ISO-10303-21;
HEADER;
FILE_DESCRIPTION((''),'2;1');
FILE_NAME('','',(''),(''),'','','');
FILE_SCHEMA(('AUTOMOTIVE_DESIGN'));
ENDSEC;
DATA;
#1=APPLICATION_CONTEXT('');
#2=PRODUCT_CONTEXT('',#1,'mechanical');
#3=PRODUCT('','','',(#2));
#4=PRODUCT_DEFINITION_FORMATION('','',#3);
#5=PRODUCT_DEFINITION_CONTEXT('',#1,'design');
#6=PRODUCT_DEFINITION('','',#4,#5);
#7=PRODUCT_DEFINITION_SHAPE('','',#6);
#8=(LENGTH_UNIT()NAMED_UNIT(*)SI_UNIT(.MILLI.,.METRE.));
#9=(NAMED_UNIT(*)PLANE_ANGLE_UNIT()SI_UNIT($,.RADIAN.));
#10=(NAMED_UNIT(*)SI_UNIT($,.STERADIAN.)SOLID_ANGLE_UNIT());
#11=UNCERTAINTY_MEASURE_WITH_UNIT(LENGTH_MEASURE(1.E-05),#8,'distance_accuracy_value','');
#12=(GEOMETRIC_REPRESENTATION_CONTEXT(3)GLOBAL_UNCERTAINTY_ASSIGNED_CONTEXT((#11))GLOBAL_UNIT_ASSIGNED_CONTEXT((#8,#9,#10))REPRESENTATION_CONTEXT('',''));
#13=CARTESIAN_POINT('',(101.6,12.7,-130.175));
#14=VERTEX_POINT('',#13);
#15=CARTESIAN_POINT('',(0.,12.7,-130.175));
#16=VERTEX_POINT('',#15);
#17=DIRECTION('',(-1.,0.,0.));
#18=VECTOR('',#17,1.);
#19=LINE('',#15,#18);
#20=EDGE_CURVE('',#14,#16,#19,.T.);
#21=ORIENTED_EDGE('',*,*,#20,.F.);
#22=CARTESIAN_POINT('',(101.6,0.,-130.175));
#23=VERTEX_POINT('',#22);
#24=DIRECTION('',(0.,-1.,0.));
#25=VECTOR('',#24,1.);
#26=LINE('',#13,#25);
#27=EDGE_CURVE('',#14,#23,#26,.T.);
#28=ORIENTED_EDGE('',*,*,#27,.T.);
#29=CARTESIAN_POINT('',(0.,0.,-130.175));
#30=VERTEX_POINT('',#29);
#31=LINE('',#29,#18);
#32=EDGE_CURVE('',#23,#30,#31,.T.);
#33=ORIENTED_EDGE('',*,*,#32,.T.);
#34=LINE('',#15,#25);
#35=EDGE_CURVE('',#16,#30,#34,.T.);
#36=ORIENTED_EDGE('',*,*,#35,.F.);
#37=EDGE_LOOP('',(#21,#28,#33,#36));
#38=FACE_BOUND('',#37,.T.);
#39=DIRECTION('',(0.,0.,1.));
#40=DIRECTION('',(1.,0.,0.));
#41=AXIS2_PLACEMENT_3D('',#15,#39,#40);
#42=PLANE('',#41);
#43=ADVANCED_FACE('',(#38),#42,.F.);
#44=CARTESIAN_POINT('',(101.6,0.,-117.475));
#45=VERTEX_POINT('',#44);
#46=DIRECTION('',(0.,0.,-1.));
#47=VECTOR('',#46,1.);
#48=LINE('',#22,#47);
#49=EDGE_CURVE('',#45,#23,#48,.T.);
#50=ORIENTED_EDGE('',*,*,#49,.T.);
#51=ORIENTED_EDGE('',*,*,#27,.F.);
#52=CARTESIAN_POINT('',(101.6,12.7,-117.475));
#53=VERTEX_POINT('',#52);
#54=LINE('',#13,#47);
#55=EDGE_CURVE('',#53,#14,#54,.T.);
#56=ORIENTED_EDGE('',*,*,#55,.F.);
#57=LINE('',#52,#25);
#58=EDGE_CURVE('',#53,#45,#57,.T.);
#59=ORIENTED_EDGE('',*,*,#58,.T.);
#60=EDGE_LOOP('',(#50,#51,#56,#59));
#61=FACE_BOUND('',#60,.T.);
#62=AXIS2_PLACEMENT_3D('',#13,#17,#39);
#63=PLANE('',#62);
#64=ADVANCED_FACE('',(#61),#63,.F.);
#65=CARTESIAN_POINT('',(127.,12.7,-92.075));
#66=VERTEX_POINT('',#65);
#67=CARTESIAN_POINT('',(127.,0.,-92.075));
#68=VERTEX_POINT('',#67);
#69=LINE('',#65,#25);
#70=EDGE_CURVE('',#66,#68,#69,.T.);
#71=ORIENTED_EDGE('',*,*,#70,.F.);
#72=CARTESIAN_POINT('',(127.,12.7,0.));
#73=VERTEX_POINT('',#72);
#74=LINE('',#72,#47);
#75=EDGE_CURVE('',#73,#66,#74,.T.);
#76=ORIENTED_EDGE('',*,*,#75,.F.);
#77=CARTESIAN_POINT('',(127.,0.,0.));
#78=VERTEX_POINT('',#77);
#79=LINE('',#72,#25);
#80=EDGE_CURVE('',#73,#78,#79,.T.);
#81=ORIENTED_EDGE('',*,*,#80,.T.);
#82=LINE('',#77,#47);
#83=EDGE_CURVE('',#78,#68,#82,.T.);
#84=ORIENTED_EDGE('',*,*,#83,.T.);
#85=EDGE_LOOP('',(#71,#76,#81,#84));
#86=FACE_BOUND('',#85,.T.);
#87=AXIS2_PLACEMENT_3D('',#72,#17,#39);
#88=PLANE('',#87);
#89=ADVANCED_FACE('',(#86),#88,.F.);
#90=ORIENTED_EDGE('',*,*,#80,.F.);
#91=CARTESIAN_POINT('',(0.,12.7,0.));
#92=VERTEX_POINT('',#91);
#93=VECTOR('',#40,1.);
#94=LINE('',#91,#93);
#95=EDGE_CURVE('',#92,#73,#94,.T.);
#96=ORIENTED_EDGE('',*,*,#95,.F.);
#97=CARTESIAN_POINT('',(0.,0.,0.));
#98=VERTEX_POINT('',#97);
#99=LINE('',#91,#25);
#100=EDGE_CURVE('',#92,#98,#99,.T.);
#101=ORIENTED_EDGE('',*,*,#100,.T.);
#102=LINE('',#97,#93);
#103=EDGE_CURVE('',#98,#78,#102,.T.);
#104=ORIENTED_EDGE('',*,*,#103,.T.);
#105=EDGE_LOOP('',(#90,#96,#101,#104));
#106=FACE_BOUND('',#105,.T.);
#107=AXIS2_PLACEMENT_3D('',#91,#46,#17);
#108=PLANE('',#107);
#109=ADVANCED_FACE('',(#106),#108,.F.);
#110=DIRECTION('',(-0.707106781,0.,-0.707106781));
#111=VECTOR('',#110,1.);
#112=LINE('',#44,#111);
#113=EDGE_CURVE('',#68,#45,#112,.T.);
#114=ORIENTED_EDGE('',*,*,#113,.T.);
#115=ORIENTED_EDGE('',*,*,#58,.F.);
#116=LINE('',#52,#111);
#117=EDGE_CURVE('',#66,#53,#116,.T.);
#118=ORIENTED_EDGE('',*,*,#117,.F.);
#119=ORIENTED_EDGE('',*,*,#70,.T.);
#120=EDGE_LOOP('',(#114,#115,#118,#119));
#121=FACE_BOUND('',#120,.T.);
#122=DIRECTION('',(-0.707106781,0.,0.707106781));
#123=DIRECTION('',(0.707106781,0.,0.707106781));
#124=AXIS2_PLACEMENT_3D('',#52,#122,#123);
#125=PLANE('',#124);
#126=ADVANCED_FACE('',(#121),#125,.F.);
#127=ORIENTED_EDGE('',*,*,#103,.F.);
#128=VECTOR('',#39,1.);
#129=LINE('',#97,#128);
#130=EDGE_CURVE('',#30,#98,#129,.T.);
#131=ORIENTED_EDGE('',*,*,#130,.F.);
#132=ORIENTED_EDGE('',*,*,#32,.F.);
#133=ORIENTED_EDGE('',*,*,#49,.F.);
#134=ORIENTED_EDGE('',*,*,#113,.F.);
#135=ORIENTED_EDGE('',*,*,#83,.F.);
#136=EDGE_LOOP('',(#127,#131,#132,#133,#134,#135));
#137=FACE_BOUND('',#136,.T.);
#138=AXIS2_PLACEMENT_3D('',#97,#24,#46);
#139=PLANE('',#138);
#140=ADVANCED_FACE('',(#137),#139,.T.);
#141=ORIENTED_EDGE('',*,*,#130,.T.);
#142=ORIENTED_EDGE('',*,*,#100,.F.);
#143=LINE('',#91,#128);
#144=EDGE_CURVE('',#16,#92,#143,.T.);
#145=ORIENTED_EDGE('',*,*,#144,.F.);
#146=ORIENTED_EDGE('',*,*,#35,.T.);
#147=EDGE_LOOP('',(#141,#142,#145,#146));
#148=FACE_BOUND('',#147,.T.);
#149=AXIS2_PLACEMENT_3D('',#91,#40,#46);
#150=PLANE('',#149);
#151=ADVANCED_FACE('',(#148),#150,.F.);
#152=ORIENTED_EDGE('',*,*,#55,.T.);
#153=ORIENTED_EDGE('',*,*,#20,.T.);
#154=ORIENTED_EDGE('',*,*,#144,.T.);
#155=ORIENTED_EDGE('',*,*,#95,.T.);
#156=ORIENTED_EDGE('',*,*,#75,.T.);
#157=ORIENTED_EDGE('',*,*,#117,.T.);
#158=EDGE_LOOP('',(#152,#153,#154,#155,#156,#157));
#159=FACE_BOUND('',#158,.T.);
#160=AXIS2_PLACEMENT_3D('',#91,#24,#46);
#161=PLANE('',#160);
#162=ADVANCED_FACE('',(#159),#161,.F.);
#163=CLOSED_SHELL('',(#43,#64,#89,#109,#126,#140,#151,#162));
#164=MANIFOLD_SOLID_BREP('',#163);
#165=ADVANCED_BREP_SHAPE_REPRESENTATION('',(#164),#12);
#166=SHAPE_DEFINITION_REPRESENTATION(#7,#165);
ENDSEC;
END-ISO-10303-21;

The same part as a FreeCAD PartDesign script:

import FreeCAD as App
import Part
import Sketcher
Q = App.Units.Quantity

doc = App.newDocument("Part")
body = doc.addObject("PartDesign::Body", "Body")

sketch1 = doc.addObject("Sketcher::SketchObject", "Sketch")
body.addObject(sketch1)
sketch1.AttachmentSupport = (doc.XZ_Plane, [""])
sketch1.MapMode = "FlatFace"
sketch1.addGeometry([
    Part.LineSegment(App.Vector(0, 0, 0), App.Vector(127, 0, 0)),
    Part.LineSegment(App.Vector(127, 0, 0), App.Vector(127, -92, 0)),
    Part.LineSegment(App.Vector(127, -92, 0), App.Vector(102, -117, 0)),
    Part.LineSegment(App.Vector(102, -117, 0), App.Vector(102, -130, 0)),
    Part.LineSegment(App.Vector(102, -130, 0), App.Vector(0, -130, 0)),
    Part.LineSegment(App.Vector(0, -130, 0), App.Vector(0, 0, 0)),
], False)
sketch1.addConstraint([
    Sketcher.Constraint("Coincident", 0, 2, 1, 1),
    Sketcher.Constraint("Coincident", 1, 2, 2, 1),
    Sketcher.Constraint("Coincident", 2, 2, 3, 1),
    Sketcher.Constraint("Coincident", 3, 2, 4, 1),
    Sketcher.Constraint("Coincident", 4, 2, 5, 1),
    Sketcher.Constraint("Coincident", 5, 2, 0, 1),
    Sketcher.Constraint("Horizontal", 0),
    Sketcher.Constraint("Vertical", 1),
    Sketcher.Constraint("Vertical", 3),
    Sketcher.Constraint("Horizontal", 4),
    Sketcher.Constraint("Vertical", 5),
    Sketcher.Constraint("Coincident", 5, 2, -1, 1),
    Sketcher.Constraint("DistanceX", 0, 1, 0, 2, Q("5 in")),
    Sketcher.Constraint("DistanceX", 4, 2, 4, 1, Q("4 in")),
    Sketcher.Constraint("DistanceY", 3, 2, 3, 1, Q("0.5 in")),
    Sketcher.Constraint("Angle", 2, Q("-135 deg")),
    Sketcher.Constraint("DistanceY", 1, 2, 1, 1, Q("3.625 in")),
])
pad1 = doc.addObject("PartDesign::Pad", "Pad")
body.addObject(pad1)
pad1.Profile = sketch1
pad1.Length = Q("0.5 in")
pad1.Reversed = True

doc.recompute()
